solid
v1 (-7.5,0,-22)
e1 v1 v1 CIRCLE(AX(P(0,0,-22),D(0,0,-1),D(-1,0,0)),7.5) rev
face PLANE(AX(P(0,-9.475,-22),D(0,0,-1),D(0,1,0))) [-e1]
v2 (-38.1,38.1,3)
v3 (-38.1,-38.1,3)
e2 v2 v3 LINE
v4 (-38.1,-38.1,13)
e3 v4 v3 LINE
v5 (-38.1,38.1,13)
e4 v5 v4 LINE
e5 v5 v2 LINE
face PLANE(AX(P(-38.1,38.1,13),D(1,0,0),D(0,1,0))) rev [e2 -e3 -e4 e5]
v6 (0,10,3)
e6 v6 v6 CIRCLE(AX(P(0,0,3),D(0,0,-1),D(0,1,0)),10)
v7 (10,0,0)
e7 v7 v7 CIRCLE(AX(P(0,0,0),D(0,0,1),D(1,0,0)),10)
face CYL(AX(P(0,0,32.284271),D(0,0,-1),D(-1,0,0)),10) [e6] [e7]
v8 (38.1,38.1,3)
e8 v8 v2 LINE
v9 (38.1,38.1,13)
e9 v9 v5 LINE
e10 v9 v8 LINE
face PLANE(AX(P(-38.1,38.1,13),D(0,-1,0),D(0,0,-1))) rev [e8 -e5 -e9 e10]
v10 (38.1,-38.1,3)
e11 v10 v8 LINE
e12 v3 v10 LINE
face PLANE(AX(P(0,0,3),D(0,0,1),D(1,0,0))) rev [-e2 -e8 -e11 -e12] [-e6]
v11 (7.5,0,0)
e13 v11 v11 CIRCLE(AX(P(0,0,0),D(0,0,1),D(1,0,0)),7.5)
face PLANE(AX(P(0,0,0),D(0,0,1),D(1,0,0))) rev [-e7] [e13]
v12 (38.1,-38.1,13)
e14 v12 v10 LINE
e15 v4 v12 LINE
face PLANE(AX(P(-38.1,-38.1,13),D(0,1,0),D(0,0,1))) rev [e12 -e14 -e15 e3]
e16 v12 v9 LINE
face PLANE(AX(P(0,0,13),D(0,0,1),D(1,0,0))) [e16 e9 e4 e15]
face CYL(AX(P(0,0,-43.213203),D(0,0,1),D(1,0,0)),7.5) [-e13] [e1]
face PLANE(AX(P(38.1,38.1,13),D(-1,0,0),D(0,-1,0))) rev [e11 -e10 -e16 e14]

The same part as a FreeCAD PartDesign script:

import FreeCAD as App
import Part
import Sketcher

V = App.Vector
Q = App.Units.Quantity


def add_polygon(sketch, points):
    """Adds a closed chain of lines whose ends are joined by coincident constraints."""
    first, n = sketch.GeometryCount, len(points)
    for a, b in zip(points, points[1:] + points[:1]):
        sketch.addGeometry(Part.LineSegment(App.Vector(*a, 0), App.Vector(*b, 0)), False)
    for i in range(n):
        sketch.addConstraint(Sketcher.Constraint("Coincident", first + i, 2, first + (i + 1) % n, 1))

doc = App.newDocument("Part")
body = doc.addObject("PartDesign::Body", "Body")

# Sketch on XY plane
sketch1 = body.newObject("Sketcher::SketchObject", "Sketch")
sketch1.AttachmentSupport = (doc.getObject("XY_Plane"), [""])
sketch1.MapMode = "FlatFace"
sketch1.addGeometry(Part.Circle(V(0, 0, 0), V(0, 0, 1), 8), False)
sketch1.addConstraint(Sketcher.Constraint("Coincident", 0, 3, -1, 1))
sketch1.addConstraint(Sketcher.Constraint("Diameter", 0, Q("15 mm")))
pad1 = body.newObject("PartDesign::Pad", "Pad")
pad1.Profile = sketch1
pad1.Length = 22
pad1.Reversed = True

# Sketch on XY plane
sketch2 = body.newObject("Sketcher::SketchObject", "Sketch001")
sketch2.AttachmentSupport = (doc.getObject("XY_Plane"), [""])
sketch2.MapMode = "FlatFace"
sketch2.addGeometry(Part.Circle(V(0, 0, 0), V(0, 0, 1), 10), False)
sketch2.addConstraint(Sketcher.Constraint("Coincident", 0, 3, -1, 1))
sketch2.addConstraint(Sketcher.Constraint("Diameter", 0, Q("20 mm")))
pad2 = body.newObject("PartDesign::Pad", "Pad001")
pad2.Profile = sketch2
pad2.Length = 3

# Sketch on XY plane
sketch3 = body.newObject("Sketcher::SketchObject", "Sketch002")
sketch3.AttachmentSupport = (doc.getObject("XY_Plane"), [""])
sketch3.MapMode = "FlatFace"
sketch3.AttachmentOffset = App.Placement(V(0, 0, 3), App.Rotation())
add_polygon(sketch3, [(-38, 38), (-38, -38), (38, -38), (38, 38)])  # lines 0-3
sketch3.addConstraint(Sketcher.Constraint("Vertical", 0))
sketch3.addConstraint(Sketcher.Constraint("Horizontal", 1))
sketch3.addConstraint(Sketcher.Constraint("Vertical", 2))
sketch3.addConstraint(Sketcher.Constraint("Horizontal", 3))
sketch3.addConstraint(Sketcher.Constraint("Symmetric", 0, 2, 2, 2, -1, 1))
sketch3.addConstraint(Sketcher.Constraint("Equal", 3, 0))
sketch3.addConstraint(Sketcher.Constraint("DistanceX", 1, 1, 1, 2, Q("76.2 mm")))
pad3 = body.newObject("PartDesign::Pad", "Pad002")
pad3.Profile = sketch3
pad3.Length = 10

doc.recompute()
